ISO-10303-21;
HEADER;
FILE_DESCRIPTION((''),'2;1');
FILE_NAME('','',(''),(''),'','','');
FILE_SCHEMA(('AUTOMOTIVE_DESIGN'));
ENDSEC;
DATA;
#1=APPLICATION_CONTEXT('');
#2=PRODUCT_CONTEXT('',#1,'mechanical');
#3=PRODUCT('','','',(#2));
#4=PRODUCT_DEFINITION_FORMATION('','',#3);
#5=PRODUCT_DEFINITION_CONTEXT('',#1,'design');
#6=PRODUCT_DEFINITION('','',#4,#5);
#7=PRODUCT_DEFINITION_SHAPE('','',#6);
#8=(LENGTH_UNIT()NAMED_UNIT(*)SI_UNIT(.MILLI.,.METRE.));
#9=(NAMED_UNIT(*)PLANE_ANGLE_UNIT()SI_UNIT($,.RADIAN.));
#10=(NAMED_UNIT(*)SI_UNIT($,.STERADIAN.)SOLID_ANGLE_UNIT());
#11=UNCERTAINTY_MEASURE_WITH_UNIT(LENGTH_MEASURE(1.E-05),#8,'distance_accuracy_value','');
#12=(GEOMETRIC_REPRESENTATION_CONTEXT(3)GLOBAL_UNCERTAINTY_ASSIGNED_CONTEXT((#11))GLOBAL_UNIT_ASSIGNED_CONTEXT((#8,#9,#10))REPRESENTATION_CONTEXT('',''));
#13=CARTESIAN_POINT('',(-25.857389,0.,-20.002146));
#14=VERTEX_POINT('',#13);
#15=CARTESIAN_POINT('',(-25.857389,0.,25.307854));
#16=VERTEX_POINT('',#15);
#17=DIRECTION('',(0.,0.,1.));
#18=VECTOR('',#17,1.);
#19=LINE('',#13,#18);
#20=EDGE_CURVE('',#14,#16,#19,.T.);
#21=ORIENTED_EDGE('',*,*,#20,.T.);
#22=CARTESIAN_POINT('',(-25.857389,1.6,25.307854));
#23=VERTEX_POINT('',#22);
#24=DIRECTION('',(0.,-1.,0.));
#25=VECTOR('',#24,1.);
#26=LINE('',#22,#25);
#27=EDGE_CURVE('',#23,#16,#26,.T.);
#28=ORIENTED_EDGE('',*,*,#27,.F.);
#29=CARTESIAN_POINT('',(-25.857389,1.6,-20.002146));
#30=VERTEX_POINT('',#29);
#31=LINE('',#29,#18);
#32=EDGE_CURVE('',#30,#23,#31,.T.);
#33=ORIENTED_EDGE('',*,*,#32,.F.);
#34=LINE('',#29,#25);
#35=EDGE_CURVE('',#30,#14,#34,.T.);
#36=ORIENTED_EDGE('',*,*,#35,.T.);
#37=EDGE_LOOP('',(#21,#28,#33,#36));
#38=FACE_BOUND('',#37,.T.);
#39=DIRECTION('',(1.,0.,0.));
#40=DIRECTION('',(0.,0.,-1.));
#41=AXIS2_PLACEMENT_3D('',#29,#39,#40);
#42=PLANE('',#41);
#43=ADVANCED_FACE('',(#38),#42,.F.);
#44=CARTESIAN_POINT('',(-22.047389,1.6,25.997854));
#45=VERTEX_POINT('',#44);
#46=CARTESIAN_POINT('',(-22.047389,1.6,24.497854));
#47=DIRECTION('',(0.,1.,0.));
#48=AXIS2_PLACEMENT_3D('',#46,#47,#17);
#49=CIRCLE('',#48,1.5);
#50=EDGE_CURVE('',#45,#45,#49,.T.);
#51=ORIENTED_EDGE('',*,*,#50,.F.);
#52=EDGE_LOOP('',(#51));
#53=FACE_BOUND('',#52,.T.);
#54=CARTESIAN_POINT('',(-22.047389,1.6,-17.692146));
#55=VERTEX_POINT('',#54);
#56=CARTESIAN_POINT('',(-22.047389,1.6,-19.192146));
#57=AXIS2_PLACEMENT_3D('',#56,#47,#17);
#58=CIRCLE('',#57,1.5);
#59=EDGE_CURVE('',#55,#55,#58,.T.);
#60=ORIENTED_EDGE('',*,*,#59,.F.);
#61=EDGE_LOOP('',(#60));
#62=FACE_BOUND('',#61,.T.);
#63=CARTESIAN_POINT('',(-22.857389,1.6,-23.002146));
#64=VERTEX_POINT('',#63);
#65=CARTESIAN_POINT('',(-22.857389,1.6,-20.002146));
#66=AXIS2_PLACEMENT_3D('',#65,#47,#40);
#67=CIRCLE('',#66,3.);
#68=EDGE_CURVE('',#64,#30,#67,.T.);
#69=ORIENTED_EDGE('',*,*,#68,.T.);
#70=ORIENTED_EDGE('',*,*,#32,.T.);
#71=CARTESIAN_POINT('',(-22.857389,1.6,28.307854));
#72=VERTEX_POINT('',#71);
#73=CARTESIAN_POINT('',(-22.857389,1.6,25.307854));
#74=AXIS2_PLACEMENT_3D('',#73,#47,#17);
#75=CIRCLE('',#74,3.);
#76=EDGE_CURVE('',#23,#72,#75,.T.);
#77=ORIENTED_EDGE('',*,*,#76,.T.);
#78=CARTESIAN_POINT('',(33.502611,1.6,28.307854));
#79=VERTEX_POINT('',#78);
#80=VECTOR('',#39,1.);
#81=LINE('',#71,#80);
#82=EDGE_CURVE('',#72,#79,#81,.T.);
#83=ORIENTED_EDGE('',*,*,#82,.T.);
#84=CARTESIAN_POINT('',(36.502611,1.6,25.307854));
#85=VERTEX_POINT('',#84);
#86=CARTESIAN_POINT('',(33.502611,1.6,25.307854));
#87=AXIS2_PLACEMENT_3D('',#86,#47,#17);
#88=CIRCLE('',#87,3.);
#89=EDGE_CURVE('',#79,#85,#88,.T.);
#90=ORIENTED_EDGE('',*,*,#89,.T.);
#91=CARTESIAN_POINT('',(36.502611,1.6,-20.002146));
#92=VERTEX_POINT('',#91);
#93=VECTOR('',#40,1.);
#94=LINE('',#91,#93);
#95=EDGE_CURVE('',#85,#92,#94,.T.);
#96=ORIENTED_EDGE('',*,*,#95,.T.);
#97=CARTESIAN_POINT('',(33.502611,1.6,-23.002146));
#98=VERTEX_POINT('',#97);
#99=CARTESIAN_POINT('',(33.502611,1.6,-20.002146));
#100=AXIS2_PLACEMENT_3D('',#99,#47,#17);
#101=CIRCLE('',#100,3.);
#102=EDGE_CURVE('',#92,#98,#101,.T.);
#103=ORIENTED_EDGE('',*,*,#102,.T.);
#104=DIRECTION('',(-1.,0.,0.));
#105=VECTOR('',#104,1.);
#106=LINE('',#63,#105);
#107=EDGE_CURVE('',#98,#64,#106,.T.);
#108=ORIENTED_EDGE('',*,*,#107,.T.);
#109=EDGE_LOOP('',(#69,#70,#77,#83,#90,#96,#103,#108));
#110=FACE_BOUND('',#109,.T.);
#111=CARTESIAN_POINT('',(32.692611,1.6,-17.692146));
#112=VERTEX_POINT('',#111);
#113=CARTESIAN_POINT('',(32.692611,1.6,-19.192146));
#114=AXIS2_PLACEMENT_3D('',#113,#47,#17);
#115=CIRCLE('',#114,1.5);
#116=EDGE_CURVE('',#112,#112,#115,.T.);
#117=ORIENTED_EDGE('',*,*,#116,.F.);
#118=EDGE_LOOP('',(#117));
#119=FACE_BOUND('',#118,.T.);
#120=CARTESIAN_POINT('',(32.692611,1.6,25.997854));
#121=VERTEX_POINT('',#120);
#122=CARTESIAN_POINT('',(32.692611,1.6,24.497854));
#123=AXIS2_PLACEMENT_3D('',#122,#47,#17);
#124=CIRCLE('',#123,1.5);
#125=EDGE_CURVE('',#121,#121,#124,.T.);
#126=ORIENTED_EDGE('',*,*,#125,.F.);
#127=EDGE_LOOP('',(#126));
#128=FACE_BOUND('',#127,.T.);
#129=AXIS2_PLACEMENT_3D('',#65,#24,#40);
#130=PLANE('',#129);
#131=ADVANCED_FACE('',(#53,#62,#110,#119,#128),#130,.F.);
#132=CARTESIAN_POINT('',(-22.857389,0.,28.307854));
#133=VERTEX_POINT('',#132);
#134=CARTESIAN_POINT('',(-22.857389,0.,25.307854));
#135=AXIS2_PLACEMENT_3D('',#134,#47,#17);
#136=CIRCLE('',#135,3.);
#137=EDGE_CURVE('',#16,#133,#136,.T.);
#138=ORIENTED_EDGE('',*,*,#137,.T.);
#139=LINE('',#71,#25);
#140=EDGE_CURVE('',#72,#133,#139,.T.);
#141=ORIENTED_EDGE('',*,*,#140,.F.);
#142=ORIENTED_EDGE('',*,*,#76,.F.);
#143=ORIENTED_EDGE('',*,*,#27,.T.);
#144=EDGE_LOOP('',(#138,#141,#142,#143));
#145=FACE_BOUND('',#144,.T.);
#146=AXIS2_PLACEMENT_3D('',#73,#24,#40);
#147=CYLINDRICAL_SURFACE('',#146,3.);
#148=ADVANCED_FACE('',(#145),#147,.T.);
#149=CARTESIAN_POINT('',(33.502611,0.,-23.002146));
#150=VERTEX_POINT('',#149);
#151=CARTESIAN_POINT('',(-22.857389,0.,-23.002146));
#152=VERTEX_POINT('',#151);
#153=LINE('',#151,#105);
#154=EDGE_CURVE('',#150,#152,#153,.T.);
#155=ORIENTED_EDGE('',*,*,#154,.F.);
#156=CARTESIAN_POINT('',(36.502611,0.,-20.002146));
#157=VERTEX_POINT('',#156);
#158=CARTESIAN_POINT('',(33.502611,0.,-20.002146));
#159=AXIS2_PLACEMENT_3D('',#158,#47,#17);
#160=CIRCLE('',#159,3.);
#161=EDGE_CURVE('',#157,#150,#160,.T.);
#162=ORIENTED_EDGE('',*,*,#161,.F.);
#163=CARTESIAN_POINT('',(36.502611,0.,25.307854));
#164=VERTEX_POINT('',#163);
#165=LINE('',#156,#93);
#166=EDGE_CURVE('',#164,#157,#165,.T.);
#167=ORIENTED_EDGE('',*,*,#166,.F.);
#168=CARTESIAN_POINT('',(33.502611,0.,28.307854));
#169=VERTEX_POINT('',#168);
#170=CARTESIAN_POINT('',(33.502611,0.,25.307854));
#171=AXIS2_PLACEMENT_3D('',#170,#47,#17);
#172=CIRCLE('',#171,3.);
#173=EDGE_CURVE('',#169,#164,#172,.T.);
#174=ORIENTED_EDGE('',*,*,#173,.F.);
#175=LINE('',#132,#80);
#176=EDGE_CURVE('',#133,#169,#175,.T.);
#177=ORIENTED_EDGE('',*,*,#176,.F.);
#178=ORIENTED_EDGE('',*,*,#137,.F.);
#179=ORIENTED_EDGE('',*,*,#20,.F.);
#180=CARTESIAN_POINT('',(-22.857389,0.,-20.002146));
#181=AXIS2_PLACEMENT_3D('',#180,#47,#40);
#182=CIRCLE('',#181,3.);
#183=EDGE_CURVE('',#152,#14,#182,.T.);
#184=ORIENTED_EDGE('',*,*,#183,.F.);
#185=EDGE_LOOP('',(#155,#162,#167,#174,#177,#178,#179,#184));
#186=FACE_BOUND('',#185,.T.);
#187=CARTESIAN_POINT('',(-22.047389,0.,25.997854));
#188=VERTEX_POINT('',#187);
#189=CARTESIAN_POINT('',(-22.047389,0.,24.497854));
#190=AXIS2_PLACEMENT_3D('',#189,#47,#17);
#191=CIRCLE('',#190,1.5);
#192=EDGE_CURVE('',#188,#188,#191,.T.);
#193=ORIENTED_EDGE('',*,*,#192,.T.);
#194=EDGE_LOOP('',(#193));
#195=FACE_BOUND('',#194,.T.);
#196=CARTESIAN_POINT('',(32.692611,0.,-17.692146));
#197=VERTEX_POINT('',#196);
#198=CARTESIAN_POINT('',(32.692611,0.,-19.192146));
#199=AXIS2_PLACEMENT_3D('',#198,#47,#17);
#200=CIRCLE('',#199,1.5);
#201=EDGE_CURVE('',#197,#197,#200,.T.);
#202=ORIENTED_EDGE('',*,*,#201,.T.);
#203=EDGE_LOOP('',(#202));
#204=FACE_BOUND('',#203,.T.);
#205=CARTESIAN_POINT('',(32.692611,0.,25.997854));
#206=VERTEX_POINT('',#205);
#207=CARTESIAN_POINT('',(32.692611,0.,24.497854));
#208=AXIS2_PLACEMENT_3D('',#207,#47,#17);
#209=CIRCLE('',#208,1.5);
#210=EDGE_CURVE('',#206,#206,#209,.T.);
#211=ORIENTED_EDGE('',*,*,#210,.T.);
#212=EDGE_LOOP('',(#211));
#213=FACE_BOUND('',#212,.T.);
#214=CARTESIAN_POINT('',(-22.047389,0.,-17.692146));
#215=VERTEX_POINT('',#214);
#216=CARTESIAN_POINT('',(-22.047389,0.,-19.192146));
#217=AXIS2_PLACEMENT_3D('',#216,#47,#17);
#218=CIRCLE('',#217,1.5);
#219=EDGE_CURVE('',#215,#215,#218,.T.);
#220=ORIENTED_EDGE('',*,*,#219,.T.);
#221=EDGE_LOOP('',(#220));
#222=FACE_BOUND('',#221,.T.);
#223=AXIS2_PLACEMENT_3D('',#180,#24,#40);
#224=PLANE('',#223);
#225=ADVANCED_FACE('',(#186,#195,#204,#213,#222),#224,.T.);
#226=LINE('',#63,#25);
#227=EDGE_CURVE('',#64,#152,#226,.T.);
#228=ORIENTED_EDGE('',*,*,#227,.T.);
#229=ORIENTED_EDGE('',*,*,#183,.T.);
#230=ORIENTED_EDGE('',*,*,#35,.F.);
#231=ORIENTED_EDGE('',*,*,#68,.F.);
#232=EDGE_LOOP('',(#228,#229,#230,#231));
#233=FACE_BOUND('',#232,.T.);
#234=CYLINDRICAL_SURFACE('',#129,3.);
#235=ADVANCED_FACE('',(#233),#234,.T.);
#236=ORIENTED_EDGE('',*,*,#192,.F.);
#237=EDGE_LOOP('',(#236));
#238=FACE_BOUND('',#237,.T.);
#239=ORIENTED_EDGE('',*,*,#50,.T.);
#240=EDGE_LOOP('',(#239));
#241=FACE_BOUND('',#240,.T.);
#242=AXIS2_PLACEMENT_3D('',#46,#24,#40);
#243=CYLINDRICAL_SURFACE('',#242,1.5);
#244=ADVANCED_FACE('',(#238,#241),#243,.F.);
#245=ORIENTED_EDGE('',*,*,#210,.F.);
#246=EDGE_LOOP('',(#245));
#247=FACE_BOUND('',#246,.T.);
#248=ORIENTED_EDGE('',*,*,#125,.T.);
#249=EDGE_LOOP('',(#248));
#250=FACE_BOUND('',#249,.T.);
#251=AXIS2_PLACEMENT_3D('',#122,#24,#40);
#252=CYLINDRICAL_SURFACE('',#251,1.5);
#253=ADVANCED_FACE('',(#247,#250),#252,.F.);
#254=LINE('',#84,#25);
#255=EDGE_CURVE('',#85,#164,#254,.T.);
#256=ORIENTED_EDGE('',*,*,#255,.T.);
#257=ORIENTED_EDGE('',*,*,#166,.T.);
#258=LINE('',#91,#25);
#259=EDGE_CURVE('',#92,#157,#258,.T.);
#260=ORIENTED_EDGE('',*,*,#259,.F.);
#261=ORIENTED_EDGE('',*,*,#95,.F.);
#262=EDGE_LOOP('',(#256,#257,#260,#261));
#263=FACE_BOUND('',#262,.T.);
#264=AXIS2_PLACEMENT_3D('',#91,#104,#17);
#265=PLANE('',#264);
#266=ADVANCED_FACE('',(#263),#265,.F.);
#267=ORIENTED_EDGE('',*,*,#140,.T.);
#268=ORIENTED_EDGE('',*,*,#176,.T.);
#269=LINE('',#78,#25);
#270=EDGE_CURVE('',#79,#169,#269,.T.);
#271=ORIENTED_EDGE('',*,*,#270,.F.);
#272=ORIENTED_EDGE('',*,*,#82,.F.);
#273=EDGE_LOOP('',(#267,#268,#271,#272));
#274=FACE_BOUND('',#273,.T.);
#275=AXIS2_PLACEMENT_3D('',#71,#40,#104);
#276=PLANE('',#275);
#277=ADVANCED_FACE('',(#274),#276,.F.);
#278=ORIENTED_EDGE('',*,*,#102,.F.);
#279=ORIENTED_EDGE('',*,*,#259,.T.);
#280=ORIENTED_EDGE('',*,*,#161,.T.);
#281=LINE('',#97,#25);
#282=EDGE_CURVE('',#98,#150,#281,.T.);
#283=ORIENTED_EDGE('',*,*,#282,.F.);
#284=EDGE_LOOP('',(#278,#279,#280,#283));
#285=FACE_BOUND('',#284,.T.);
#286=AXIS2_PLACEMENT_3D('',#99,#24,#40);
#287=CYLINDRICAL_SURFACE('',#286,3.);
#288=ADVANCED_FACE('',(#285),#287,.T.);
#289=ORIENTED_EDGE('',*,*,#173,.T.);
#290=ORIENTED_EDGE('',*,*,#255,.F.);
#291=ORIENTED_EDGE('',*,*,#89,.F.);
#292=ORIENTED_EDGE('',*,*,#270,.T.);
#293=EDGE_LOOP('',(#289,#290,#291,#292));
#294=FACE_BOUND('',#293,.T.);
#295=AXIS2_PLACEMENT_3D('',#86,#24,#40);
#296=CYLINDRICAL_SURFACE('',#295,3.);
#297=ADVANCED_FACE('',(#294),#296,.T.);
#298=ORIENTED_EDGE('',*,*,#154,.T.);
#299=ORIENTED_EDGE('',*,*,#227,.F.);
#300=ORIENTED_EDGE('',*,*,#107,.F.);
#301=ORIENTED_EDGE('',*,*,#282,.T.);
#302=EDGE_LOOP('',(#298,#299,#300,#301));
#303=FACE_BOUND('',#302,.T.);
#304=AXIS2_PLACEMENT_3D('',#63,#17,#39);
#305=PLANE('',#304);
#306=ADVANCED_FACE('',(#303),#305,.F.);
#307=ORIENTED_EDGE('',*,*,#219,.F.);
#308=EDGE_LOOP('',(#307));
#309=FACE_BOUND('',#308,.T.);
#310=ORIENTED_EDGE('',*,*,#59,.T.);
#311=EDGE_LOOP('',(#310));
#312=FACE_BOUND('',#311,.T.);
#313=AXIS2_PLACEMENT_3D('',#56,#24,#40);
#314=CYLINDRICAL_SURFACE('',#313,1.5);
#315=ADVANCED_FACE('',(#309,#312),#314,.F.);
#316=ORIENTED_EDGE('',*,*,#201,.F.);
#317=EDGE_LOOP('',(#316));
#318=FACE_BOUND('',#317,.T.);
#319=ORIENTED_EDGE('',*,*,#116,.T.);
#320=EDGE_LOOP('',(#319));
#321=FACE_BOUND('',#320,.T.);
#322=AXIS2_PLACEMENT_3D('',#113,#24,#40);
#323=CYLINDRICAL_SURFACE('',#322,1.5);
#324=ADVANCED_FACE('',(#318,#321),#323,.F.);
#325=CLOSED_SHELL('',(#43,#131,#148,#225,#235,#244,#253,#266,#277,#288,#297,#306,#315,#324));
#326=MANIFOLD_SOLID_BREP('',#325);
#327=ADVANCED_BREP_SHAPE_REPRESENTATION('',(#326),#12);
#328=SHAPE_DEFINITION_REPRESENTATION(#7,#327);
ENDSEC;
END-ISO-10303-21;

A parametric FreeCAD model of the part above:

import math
import FreeCAD as App
import Part
import Sketcher
from FreeCAD import Vector
Q = App.Units.Quantity

doc = App.newDocument("Part")
body = doc.addObject("PartDesign::Body", "Body")

# Sketch on XZ plane
sketch1 = body.newObject("Sketcher::SketchObject", "Sketch")
sketch1.AttachmentSupport = (doc.getObject("XZ_Plane"), [""])
sketch1.MapMode = "FlatFace"
sketch1.addGeometry([
    Part.LineSegment(Vector(33.5, -23, 0), Vector(-22.9, -23, 0)),  # 0
    Part.ArcOfCircle(Part.Circle(Vector(-22.9, -20, 0), Vector(0, 0, 1), 3), math.radians(-180), math.radians(-90)),  # 1
    Part.LineSegment(Vector(-25.9, -20, 0), Vector(-25.9, 25.3, 0)),  # 2
    Part.ArcOfCircle(Part.Circle(Vector(-22.9, 25.3, 0), Vector(0, 0, 1), 3), math.radians(90), math.radians(180)),  # 3
    Part.LineSegment(Vector(-22.9, 28.3, 0), Vector(33.5, 28.3, 0)),  # 4
    Part.ArcOfCircle(Part.Circle(Vector(33.5, 25.3, 0), Vector(0, 0, 1), 3), math.radians(0), math.radians(90)),  # 5
    Part.LineSegment(Vector(36.5, 25.3, 0), Vector(36.5, -20, 0)),  # 6
    Part.ArcOfCircle(Part.Circle(Vector(33.5, -20, 0), Vector(0, 0, 1), 3), math.radians(-90), math.radians(0)),  # 7
    Part.Circle(Vector(32.7, 24.5, 0), Vector(0, 0, 1), 1.5),  # 8
    Part.Circle(Vector(-22, 24.5, 0), Vector(0, 0, 1), 1.5),  # 9
    Part.Circle(Vector(32.7, -19.2, 0), Vector(0, 0, 1), 1.5),  # 10
    Part.Circle(Vector(-22, -19.2, 0), Vector(0, 0, 1), 1.5),  # 11
], False)
sketch1.addConstraint([
    Sketcher.Constraint("Tangent", 0, 2, 1, 2),
    Sketcher.Constraint("Tangent", 1, 1, 2, 1),
    Sketcher.Constraint("Tangent", 2, 2, 3, 2),
    Sketcher.Constraint("Tangent", 3, 1, 4, 1),
    Sketcher.Constraint("Tangent", 4, 2, 5, 2),
    Sketcher.Constraint("Tangent", 5, 1, 6, 1),
    Sketcher.Constraint("Tangent", 6, 2, 7, 2),
    Sketcher.Constraint("Tangent", 7, 1, 0, 1),
    Sketcher.Constraint("Horizontal", 0),
    Sketcher.Constraint("Vertical", 2),
    Sketcher.Constraint("Horizontal", 4),
    Sketcher.Constraint("Vertical", 6),
    Sketcher.Constraint("Equal", 1, 3),
    Sketcher.Constraint("Equal", 3, 5),
    Sketcher.Constraint("Equal", 5, 7),
    Sketcher.Constraint("Equal", 8, 9),
    Sketcher.Constraint("Equal", 9, 10),
    Sketcher.Constraint("Equal", 10, 11),
    Sketcher.Constraint("Horizontal", 8, 3, 9, 3),
    Sketcher.Constraint("Horizontal", 10, 3, 11, 3),
    Sketcher.Constraint("Vertical", 8, 3, 10, 3),
    Sketcher.Constraint("Vertical", 9, 3, 11, 3),
    Sketcher.Constraint("Diameter", 8, Q("3 mm")),
    Sketcher.Constraint("Radius", 1, Q("3 mm")),
    Sketcher.Constraint("DistanceX", 0, 2, 0, 1, Q("56.36 mm")),
    Sketcher.Constraint("DistanceY", 2, 1, 2, 2, Q("45.31 mm")),
    Sketcher.Constraint("DistanceY", 7, 3, 8, 3, Q("44.5 mm")),
    Sketcher.Constraint("DistanceY", 10, 3, 5, 3, Q("44.5 mm")),
    Sketcher.Constraint("DistanceX", 8, 3, 5, 3, Q("0.81 mm")),
    Sketcher.Constraint("DistanceX", 3, 3, 9, 3, Q("0.81 mm")),
    Sketcher.Constraint("DistanceX", 1, 3, -1, 1, Q("22.857389 mm")),
    Sketcher.Constraint("DistanceY", 1, 3, -1, 1, Q("20.002146 mm")),
])
pad1 = body.newObject("PartDesign::Pad", "Pad")
pad1.Profile = sketch1
pad1.Length = 1.6
pad1.Reversed = True

doc.recompute()
